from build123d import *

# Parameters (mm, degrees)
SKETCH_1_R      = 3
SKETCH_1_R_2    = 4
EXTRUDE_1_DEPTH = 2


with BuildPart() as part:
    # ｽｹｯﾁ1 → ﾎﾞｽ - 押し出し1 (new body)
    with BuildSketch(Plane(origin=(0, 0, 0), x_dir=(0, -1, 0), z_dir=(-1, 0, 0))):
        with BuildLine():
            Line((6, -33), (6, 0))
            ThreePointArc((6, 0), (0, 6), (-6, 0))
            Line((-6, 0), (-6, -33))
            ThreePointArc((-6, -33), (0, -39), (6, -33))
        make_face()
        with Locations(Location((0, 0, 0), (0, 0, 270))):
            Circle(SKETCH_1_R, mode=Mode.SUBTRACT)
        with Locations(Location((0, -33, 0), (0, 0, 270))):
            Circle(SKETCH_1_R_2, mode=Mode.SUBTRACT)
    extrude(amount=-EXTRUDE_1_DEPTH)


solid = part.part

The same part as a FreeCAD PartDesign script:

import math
import FreeCAD as App
import Part
import Sketcher

doc = App.newDocument("Part")
body = doc.addObject("PartDesign::Body", "Body")

sketch1 = body.newObject("Sketcher::SketchObject", "Sketch")
sketch1.AttachmentSupport = (doc.getObject("YZ_Plane"), [""])
sketch1.MapMode = "FlatFace"
sketch1.addGeometry([
    Part.LineSegment(App.Vector(-6, -33, 0), App.Vector(-6, 0, 0)),
    Part.ArcOfCircle(Part.Circle(App.Vector(0, 0, 0), App.Vector(0, 0, 1), 6), math.radians(0), math.radians(180)),
    Part.LineSegment(App.Vector(6, 0, 0), App.Vector(6, -33, 0)),
    Part.ArcOfCircle(Part.Circle(App.Vector(0, -33, 0), App.Vector(0, 0, 1), 6), math.radians(180), math.radians(360)),
    Part.Circle(App.Vector(0, -33, 0), App.Vector(0, 0, 1), 4),
    Part.Circle(App.Vector(0, 0, 0), App.Vector(0, 0, 1), 3),
], False)
sketch1.addConstraint([
    Sketcher.Constraint("Tangent", 0, 2, 1, 2),
    Sketcher.Constraint("Tangent", 1, 1, 2, 1),
    Sketcher.Constraint("Tangent", 2, 2, 3, 2),
    Sketcher.Constraint("Tangent", 3, 1, 0, 1),
    Sketcher.Constraint("Vertical", 0),
    Sketcher.Constraint("Vertical", 2),
    Sketcher.Constraint("Coincident", 1, 3, -1, 1),
    Sketcher.Constraint("Coincident", 5, 3, -1, 1),
    Sketcher.Constraint("Coincident", 4, 3, 3, 3),
    Sketcher.Constraint("Diameter", 4, 8.0),
    Sketcher.Constraint("Diameter", 5, 6.0),
    Sketcher.Constraint("Radius", 1, 6.0),
    Sketcher.Constraint("DistanceY", 0, 1, 0, 2, 33.0),
])
pad1 = body.newObject("PartDesign::Pad", "Pad")
pad1.Profile = sketch1
pad1.Length = 2

doc.recompute()
